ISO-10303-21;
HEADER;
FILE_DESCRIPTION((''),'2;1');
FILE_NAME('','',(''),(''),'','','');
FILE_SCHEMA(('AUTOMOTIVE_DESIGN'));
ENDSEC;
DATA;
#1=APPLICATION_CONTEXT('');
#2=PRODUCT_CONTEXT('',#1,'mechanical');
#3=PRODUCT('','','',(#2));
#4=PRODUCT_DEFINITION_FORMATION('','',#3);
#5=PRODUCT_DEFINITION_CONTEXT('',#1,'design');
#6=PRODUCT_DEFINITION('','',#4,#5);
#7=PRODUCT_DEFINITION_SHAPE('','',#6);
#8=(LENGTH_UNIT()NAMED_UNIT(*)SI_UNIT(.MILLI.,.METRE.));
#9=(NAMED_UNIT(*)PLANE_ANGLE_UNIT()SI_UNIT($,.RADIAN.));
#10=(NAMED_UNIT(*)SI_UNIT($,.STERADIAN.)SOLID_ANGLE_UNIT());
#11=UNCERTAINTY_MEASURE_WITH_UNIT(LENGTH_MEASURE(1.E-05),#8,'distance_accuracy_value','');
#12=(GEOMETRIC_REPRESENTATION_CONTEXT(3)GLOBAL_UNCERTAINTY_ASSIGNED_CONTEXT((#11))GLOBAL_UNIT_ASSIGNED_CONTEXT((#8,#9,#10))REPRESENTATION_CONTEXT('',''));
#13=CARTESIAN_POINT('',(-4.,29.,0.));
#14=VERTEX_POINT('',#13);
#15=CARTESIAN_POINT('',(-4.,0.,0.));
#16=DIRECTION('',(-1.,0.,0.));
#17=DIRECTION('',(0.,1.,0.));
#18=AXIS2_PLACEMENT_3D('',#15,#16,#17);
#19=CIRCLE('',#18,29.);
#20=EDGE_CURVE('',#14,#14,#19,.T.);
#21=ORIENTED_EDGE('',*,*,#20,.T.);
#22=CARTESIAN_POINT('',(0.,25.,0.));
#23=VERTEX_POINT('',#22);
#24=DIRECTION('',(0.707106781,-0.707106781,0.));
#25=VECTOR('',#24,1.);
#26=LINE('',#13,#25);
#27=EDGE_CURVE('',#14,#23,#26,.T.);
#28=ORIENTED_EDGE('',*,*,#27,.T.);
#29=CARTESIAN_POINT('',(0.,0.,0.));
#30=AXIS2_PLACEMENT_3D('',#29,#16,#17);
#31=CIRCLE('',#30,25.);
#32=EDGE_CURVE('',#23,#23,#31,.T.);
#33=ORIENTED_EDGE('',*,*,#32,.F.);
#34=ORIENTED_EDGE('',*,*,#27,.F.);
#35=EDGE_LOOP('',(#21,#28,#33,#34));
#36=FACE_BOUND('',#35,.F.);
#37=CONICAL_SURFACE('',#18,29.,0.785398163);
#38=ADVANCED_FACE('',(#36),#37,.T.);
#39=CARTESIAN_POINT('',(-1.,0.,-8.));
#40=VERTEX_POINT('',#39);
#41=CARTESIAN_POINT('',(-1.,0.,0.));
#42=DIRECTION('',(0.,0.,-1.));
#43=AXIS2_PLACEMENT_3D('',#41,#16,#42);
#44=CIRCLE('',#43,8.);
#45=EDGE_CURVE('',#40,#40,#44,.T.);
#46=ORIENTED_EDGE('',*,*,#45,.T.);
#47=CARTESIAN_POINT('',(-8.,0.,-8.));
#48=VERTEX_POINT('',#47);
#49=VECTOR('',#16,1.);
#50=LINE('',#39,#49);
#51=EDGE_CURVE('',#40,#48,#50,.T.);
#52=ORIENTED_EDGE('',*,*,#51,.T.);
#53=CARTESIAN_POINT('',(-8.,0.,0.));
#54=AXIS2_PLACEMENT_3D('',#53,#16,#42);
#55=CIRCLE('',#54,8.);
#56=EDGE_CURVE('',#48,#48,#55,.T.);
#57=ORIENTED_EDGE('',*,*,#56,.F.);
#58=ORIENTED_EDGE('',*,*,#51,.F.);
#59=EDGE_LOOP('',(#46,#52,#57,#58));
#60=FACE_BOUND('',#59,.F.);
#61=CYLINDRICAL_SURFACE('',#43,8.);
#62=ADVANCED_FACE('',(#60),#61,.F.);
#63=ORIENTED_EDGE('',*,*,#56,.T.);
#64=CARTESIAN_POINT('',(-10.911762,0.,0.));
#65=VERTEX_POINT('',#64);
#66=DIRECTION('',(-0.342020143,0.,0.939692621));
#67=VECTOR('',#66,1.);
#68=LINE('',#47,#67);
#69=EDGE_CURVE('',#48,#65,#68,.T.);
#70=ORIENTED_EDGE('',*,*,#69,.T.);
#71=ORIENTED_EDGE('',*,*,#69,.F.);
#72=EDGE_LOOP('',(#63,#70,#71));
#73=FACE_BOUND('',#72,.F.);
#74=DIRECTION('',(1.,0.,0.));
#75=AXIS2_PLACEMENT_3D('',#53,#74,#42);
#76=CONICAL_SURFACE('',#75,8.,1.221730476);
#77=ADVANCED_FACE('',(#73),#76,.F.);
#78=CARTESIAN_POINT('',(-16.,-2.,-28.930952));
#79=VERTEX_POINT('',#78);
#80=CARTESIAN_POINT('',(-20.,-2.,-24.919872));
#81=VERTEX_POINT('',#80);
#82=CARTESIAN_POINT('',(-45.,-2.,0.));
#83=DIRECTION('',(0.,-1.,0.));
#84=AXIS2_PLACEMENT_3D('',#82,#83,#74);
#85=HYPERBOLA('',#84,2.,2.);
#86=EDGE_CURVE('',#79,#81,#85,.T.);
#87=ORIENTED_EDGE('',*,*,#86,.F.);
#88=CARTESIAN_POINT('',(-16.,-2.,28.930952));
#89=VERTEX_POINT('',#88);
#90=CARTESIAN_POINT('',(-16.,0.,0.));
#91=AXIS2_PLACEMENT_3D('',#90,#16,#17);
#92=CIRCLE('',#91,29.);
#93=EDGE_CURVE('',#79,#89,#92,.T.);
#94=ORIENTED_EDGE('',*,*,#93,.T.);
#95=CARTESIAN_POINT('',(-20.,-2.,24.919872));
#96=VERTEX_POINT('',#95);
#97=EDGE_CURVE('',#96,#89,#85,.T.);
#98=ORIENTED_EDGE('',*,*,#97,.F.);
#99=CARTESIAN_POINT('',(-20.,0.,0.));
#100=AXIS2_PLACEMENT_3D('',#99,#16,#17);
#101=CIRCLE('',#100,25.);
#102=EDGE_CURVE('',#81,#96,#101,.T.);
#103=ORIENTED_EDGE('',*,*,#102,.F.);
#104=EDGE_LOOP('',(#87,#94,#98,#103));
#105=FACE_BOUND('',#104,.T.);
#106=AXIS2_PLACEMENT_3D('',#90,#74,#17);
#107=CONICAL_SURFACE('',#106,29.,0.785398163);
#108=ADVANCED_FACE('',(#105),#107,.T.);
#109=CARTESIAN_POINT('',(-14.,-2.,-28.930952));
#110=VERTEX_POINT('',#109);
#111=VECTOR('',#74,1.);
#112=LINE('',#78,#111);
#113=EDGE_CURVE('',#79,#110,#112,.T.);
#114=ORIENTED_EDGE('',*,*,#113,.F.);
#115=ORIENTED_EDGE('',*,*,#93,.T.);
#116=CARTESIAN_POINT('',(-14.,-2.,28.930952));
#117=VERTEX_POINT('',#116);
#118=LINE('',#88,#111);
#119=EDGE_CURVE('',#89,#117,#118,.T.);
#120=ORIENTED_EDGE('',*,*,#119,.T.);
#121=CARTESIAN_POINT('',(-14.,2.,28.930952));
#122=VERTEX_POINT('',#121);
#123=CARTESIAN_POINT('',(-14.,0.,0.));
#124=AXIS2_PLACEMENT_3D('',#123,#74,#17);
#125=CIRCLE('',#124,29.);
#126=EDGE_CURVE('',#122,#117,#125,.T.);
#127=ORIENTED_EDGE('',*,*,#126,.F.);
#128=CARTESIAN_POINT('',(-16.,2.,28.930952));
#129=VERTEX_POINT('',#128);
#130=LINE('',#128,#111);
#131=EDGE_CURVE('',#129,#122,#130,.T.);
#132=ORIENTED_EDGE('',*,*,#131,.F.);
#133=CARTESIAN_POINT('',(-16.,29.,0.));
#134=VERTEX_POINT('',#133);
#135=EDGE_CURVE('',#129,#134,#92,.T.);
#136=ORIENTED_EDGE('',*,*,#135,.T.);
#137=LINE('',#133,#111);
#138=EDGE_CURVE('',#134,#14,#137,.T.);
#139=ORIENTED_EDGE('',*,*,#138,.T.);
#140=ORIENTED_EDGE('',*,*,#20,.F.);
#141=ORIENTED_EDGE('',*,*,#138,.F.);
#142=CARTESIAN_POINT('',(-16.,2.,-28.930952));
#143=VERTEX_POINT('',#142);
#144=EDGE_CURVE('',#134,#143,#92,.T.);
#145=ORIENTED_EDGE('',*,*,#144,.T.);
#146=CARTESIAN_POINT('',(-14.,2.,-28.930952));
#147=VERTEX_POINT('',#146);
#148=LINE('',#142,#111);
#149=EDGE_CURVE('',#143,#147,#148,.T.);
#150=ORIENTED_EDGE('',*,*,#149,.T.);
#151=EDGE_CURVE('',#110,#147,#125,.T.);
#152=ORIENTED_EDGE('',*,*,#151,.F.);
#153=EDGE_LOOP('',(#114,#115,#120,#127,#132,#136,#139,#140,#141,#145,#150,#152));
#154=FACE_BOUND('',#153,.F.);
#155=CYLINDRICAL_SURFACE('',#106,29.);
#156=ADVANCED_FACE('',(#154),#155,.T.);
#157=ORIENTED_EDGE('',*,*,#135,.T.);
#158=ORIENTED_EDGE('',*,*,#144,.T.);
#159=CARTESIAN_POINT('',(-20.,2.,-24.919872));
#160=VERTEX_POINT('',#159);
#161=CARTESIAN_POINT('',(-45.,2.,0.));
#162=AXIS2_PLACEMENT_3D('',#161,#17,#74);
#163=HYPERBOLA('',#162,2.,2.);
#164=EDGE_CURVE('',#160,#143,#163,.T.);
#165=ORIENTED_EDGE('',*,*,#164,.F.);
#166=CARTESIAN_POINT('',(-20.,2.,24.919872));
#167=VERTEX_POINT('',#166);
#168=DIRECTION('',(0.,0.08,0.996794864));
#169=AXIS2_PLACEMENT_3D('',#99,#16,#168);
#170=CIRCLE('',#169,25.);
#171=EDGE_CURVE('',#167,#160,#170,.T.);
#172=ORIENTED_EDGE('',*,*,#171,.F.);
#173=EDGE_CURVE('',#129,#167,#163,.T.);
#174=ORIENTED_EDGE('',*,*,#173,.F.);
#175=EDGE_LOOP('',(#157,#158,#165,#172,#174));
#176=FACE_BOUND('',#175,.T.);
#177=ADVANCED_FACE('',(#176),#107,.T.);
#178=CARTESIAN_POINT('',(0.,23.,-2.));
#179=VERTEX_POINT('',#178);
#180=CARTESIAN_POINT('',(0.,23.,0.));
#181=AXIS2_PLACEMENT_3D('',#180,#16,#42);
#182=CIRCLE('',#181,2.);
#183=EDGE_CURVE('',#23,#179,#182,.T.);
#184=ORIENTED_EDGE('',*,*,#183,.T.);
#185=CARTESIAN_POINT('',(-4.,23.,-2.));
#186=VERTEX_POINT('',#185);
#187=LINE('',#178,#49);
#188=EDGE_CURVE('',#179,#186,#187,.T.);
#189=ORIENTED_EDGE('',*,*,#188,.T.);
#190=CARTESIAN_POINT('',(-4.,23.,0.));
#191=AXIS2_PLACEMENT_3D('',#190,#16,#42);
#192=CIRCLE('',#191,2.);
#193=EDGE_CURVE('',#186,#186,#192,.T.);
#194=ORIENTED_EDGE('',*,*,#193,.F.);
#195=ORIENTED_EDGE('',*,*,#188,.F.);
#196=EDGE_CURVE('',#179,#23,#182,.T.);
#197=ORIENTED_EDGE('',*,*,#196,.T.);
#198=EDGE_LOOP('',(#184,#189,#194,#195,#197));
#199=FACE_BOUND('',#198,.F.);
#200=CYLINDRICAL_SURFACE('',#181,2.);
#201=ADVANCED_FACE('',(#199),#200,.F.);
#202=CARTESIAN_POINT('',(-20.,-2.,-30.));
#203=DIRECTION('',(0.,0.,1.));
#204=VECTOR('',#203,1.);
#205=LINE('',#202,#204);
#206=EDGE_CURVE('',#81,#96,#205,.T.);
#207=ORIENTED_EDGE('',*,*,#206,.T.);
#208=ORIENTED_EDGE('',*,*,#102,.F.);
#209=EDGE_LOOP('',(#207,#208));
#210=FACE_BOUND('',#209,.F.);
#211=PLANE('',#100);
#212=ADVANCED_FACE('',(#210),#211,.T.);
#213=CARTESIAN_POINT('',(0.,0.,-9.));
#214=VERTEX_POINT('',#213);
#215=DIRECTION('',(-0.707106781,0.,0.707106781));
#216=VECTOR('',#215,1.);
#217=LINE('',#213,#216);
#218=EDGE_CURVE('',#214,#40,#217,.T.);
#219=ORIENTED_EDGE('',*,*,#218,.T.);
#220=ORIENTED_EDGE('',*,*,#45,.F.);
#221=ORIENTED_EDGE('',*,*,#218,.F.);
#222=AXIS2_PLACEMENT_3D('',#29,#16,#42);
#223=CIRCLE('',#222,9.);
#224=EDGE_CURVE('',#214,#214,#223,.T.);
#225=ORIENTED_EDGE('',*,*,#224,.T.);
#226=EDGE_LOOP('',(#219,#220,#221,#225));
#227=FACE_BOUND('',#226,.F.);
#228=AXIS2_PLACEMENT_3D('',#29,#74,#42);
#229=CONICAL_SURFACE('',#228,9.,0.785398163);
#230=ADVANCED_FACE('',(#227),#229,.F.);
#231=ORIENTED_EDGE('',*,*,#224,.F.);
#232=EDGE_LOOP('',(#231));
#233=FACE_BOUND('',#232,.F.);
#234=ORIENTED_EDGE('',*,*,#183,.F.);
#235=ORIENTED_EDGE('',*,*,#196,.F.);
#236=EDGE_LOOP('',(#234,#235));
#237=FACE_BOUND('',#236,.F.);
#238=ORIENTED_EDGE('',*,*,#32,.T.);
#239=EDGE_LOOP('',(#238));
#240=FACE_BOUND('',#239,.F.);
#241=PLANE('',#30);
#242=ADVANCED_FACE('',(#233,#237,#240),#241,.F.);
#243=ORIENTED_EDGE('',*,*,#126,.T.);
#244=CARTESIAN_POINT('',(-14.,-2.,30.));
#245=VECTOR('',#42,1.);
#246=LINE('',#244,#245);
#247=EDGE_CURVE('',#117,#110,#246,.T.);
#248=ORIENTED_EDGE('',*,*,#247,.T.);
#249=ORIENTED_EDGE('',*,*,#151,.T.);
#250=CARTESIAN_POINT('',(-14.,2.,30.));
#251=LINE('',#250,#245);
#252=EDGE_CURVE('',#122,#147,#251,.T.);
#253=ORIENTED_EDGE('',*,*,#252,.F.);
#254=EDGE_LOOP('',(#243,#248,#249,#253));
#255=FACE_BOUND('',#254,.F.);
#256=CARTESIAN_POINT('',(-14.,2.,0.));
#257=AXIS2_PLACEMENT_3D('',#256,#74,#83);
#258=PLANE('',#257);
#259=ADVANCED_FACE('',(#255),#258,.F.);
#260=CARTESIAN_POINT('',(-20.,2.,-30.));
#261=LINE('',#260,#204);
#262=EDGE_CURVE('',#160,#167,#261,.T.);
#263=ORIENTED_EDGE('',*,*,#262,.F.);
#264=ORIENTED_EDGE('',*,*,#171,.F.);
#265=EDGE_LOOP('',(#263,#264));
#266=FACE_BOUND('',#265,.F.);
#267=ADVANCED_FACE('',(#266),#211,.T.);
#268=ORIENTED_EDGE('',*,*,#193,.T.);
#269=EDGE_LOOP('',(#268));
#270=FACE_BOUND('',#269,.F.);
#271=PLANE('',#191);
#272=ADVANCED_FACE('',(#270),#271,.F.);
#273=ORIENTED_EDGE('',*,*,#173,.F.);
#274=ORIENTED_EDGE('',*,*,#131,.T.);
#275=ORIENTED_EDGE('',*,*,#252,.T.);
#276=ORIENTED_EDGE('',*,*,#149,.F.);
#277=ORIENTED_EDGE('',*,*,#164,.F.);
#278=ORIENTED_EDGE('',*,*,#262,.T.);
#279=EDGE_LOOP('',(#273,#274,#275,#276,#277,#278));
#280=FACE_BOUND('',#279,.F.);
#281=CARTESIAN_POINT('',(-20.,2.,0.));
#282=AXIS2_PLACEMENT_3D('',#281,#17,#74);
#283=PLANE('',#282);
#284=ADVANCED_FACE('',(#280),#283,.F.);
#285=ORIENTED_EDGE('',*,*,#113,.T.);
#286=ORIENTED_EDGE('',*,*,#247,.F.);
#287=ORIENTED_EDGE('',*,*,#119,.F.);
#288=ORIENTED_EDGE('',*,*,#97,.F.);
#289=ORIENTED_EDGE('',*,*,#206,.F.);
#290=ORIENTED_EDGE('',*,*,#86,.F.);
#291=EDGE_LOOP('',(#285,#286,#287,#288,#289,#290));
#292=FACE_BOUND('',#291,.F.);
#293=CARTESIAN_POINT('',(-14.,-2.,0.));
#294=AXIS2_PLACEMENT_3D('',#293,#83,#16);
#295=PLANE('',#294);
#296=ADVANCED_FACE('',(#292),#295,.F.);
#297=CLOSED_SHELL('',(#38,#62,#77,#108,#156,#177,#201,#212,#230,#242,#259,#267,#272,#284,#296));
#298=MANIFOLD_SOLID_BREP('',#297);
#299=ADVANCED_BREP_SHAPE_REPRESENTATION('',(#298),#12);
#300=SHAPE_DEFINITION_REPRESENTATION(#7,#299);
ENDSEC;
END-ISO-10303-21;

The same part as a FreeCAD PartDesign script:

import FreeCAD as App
import Part
import Sketcher
from FreeCAD import Vector


def add_polygon(sketch, points):
    """Adds a closed chain of lines whose ends are joined by coincident constraints."""
    first, n = sketch.GeometryCount, len(points)
    for a, b in zip(points, points[1:] + points[:1]):
        sketch.addGeometry(Part.LineSegment(App.Vector(*a, 0), App.Vector(*b, 0)), False)
    for i in range(n):
        sketch.addConstraint(Sketcher.Constraint("Coincident", first + i, 2, first + (i + 1) % n, 1))

doc = App.newDocument("Part")
params = doc.addObject("Spreadsheet::Sheet", "Params")
for row, (alias, value) in enumerate([
    ("sketch1_width", "20 mm"),
    ("revolution_angle", "360 deg"),
    ("sketch2_diameter", "4 mm"),
    ("hole_diameter", "4 mm"),
    ("hole_depth", "4 mm"),
    ("sketch3_diameter", "16 mm"),
    ("hole2_diameter", "16 mm"),
    ("hole2_depth", "8 mm"),
    ("hole2_csink_diameter", "18 mm"),
    ("sketch4_width", "6 mm"),
    ("sketch4_height", "4 mm"),
], start=1):
    params.set(f"A{row}", alias)
    params.set(f"B{row}", "=" + value)
    params.setAlias(f"B{row}", alias)

body = doc.addObject("PartDesign::Body", "Body")

sketch1 = body.newObject("Sketcher::SketchObject", "Sketch")
sketch1.AttachmentSupport = (doc.getObject("XY_Plane"), [""])
sketch1.MapMode = "FlatFace"
add_polygon(sketch1, [(-20, 0), (0, 0), (0, 25), (-4, 29), (-16, 29), (-20, 25)])
sketch1.addConstraint([
    Sketcher.Constraint("Horizontal", 0),
    Sketcher.Constraint("Vertical", 1),
    Sketcher.Constraint("Horizontal", 3),
    Sketcher.Constraint("Vertical", 5),
    Sketcher.Constraint("Coincident", 0, 2, -1, 1),
    Sketcher.Constraint("Perpendicular", 2, 4),
    Sketcher.Constraint("Horizontal", 1, 2, 4, 2),
    Sketcher.Constraint("Equal", 2, 4),
    Sketcher.Constraint("DistanceX", 0, 1, 0, 2, 20.0),
    Sketcher.Constraint("DistanceX", 2, 2, -1, 1, 4.0),
    Sketcher.Constraint("DistanceY", -1, 1, 2, 2, 29.0),
])
sketch1.setExpression("Constraints[14]", "Params.sketch1_width")
revolution = body.newObject("PartDesign::Revolution", "Revolution")
revolution.Profile = sketch1
revolution.ReferenceAxis = (sketch1, ["H_Axis"])
revolution.setExpression("Angle", "Params.revolution_angle")

sketch2 = body.newObject("Sketcher::SketchObject", "Sketch001")
sketch2.AttachmentSupport = (doc.getObject("YZ_Plane"), [""])
sketch2.MapMode = "FlatFace"
sketch2.addGeometry(Part.Circle(Vector(23, 0, 0), Vector(0, 0, 1), 2), False)
sketch2.addConstraint([
    Sketcher.Constraint("PointOnObject", 0, 3, -1),
    Sketcher.Constraint("Diameter", 0, 4.0),
    Sketcher.Constraint("DistanceX", -1, 1, 0, 3, 23.0),
])
sketch2.setExpression("Constraints[1]", "Params.sketch2_diameter")
doc.recompute()
hole = body.newObject("PartDesign::Hole", "Hole")
hole.Profile = sketch2
hole.ThreadType = "None"
hole.setExpression("Diameter", "Params.hole_diameter")
hole.DepthType = "Dimension"
hole.setExpression("Depth", "Params.hole_depth")
hole.DrillPoint = "Flat"

sketch3 = body.newObject("Sketcher::SketchObject", "Sketch002")
sketch3.AttachmentSupport = (doc.getObject("YZ_Plane"), [""])
sketch3.MapMode = "FlatFace"
sketch3.addGeometry(Part.Circle(Vector(0, 0, 0), Vector(0, 0, 1), 8), False)
sketch3.addConstraint([
    Sketcher.Constraint("Coincident", 0, 3, -1, 1),
    Sketcher.Constraint("Diameter", 0, 16.0),
])
sketch3.setExpression("Constraints[1]", "Params.sketch3_diameter")
doc.recompute()
hole2 = body.newObject("PartDesign::Hole", "Hole001")
hole2.Profile = sketch3
hole2.ThreadType = "None"
hole2.setExpression("Diameter", "Params.hole2_diameter")
hole2.DepthType = "Dimension"
hole2.setExpression("Depth", "Params.hole2_depth")
hole2.DrillPoint = "Angled"
hole2.DrillPointAngle = 140
hole2.HoleCutType = "Countersink"
hole2.setExpression("HoleCutDiameter", "Params.hole2_csink_diameter")
hole2.HoleCutCountersinkAngle = 90

sketch4 = body.newObject("Sketcher::SketchObject", "Sketch003")
sketch4.AttachmentSupport = (doc.getObject("XY_Plane"), [""])
sketch4.MapMode = "FlatFace"
add_polygon(sketch4, [(-14, 2), (-20, 2), (-20, -2), (-14, -2)])
sketch4.addConstraint([
    Sketcher.Constraint("Horizontal", 0),
    Sketcher.Constraint("Vertical", 1),
    Sketcher.Constraint("Horizontal", 2),
    Sketcher.Constraint("Vertical", 3),
    Sketcher.Constraint("DistanceX", 0, 2, 0, 1, 6.0),
    Sketcher.Constraint("DistanceY", 1, 2, 1, 1, 4.0),
    Sketcher.Constraint("DistanceX", 0, 2, -1, 1, 20.0),
    Sketcher.Constraint("DistanceY", -1, 1, 0, 2, 2.0),
])
sketch4.setExpression("Constraints[8]", "Params.sketch4_width")
sketch4.setExpression("Constraints[9]", "Params.sketch4_height")
pocket1 = body.newObject("PartDesign::Pocket", "Pocket")
pocket1.Profile = sketch4
pocket1.Type = "ThroughAll"
pocket1.Midplane = True

doc.recompute()
